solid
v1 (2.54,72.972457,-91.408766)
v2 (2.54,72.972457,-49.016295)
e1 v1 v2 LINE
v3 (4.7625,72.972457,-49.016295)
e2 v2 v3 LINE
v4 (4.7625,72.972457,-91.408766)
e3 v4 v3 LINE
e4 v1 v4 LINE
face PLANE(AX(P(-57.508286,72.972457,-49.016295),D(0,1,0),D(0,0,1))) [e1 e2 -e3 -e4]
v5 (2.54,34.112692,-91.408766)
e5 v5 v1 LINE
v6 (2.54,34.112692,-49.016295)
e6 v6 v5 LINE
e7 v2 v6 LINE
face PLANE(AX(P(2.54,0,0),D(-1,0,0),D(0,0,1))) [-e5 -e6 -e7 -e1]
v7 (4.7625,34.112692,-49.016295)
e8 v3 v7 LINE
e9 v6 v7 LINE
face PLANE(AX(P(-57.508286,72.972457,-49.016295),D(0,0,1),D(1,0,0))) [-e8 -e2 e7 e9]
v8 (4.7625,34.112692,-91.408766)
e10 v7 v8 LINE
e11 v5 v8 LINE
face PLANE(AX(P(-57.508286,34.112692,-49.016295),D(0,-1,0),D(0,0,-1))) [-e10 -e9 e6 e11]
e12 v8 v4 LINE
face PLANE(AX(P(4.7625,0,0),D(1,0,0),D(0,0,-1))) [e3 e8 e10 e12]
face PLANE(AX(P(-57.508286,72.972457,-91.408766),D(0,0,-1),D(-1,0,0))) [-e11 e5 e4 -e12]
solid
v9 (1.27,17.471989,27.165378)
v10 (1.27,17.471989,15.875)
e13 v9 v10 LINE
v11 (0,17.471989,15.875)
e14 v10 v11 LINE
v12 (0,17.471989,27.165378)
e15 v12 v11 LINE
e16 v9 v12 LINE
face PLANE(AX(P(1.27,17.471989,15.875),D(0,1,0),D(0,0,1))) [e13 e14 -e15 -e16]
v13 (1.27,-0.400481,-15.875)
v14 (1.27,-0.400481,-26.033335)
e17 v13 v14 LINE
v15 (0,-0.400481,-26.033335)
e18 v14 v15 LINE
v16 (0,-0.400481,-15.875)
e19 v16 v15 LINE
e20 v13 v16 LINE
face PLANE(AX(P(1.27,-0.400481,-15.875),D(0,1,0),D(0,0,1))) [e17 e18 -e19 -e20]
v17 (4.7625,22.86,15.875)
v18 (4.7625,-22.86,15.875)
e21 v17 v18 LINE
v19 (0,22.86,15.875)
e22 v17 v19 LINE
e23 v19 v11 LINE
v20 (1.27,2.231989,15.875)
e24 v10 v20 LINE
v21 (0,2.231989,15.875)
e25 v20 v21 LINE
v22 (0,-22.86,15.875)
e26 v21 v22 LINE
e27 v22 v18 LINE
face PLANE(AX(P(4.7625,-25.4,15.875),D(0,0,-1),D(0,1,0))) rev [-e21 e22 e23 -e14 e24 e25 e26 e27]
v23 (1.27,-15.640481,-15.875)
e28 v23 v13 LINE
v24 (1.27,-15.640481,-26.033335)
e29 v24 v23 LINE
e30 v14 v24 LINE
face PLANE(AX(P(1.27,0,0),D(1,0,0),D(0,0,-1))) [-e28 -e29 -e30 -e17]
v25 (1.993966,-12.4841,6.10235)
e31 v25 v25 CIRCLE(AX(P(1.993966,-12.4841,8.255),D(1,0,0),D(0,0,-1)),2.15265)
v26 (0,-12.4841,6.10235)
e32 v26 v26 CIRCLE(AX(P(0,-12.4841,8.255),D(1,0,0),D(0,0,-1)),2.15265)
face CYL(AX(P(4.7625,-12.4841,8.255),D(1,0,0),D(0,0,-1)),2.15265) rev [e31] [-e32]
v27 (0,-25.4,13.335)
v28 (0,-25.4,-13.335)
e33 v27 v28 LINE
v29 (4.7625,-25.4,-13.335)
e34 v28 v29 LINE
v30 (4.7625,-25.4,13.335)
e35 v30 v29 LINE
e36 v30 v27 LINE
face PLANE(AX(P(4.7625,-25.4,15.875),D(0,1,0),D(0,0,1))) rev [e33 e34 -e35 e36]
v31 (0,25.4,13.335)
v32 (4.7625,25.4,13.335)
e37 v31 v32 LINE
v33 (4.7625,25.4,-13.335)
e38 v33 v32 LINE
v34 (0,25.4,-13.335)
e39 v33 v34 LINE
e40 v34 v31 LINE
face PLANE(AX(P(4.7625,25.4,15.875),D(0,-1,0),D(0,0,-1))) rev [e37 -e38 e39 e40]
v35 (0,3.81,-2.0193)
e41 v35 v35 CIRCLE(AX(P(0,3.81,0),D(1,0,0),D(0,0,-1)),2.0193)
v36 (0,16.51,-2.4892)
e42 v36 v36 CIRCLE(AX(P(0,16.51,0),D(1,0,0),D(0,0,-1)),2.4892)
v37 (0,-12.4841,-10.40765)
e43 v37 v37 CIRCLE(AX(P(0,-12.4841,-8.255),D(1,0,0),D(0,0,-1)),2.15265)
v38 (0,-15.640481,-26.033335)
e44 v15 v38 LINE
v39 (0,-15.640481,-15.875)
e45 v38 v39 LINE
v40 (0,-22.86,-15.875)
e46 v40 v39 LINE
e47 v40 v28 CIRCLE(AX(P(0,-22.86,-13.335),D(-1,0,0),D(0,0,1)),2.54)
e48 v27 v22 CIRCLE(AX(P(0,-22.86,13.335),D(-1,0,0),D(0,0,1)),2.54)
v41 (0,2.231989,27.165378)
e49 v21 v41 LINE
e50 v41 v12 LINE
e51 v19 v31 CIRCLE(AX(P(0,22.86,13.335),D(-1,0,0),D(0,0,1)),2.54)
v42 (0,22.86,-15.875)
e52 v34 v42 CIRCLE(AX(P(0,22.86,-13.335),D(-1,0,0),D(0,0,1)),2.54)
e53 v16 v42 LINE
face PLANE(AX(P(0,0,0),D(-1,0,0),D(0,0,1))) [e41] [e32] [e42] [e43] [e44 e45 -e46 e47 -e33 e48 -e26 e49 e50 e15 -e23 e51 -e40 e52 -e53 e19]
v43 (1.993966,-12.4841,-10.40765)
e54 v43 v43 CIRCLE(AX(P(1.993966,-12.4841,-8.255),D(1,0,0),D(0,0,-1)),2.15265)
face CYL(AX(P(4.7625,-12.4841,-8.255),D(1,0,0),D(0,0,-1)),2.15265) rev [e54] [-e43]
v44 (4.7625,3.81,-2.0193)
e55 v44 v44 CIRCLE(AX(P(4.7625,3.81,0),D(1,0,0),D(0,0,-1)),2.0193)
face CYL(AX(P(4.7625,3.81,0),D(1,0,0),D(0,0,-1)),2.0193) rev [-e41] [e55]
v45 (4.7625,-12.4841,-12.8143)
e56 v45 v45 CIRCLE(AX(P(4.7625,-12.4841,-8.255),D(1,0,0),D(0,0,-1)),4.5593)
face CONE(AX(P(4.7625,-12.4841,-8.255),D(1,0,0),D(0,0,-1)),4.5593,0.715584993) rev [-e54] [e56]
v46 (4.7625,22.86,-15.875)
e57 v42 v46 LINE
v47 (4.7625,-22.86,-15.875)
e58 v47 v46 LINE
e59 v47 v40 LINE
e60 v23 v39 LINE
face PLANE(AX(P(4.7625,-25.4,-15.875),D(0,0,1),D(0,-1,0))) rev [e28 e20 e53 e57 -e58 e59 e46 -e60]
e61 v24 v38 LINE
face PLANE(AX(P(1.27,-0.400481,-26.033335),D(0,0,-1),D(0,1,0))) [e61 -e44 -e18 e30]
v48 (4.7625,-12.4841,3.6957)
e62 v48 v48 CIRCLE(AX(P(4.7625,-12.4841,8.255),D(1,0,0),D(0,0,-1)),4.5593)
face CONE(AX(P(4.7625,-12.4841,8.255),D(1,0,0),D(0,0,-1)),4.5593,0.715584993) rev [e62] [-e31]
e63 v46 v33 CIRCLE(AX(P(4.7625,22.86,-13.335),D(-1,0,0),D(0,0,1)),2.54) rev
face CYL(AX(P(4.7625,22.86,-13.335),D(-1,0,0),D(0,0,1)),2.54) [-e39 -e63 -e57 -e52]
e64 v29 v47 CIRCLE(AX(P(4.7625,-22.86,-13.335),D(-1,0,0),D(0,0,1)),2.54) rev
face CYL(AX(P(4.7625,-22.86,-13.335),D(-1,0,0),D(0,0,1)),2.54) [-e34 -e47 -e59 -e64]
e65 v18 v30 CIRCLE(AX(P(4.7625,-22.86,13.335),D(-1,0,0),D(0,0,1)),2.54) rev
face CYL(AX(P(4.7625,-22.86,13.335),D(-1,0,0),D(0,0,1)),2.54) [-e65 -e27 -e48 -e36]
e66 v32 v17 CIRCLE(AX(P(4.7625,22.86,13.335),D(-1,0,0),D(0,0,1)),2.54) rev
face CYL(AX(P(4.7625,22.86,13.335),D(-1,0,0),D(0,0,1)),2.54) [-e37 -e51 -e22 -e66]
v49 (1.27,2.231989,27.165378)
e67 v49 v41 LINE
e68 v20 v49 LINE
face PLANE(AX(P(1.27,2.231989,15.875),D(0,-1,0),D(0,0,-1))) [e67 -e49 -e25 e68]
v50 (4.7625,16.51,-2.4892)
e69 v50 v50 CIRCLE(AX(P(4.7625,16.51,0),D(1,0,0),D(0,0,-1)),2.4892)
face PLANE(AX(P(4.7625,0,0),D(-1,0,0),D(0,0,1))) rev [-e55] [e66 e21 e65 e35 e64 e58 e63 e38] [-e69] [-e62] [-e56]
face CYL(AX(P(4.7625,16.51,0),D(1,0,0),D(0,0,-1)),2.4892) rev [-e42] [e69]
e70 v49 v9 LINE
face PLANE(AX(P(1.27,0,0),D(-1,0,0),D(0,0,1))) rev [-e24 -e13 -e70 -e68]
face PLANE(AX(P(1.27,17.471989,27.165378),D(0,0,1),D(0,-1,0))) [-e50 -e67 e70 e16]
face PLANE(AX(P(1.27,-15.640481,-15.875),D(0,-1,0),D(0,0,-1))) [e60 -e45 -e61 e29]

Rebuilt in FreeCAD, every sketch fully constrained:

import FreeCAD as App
import Part
import Sketcher
from FreeCAD import Vector
Q = App.Units.Quantity


def edges_at(feature, points):
    """Names of the edges that pass closest to the given points."""
    edges = feature.Shape.Edges
    near = lambda p: min(range(len(edges)), key=lambda i: edges[i].distToShape(Part.Vertex(*p))[0])
    return sorted({f"Edge{near(p) + 1}" for p in points})

doc = App.newDocument("Part")
body = doc.addObject("PartDesign::Body", "Body")

# Sketch on YZ plane
sketch1 = body.newObject("Sketcher::SketchObject", "Sketch")
sketch1.AttachmentSupport = (doc.getObject("YZ_Plane"), [""])
sketch1.MapMode = "FlatFace"
sketch1.addGeometry(Part.LineSegment(Vector(25, 16, 0), Vector(-25, 16, 0)), False)
sketch1.addGeometry(Part.LineSegment(Vector(-25, 16, 0), Vector(-25, -16, 0)), False)
sketch1.addGeometry(Part.LineSegment(Vector(-25, -16, 0), Vector(25, -16, 0)), False)
sketch1.addGeometry(Part.LineSegment(Vector(25, -16, 0), Vector(25, 16, 0)), False)
sketch1.addConstraint(Sketcher.Constraint("Coincident", 0, 2, 1, 1))
sketch1.addConstraint(Sketcher.Constraint("Coincident", 1, 2, 2, 1))
sketch1.addConstraint(Sketcher.Constraint("Coincident", 2, 2, 3, 1))
sketch1.addConstraint(Sketcher.Constraint("Coincident", 3, 2, 0, 1))
sketch1.addConstraint(Sketcher.Constraint("Horizontal", 0))
sketch1.addConstraint(Sketcher.Constraint("Vertical", 1))
sketch1.addConstraint(Sketcher.Constraint("Horizontal", 2))
sketch1.addConstraint(Sketcher.Constraint("Vertical", 3))
sketch1.addConstraint(Sketcher.Constraint("Symmetric", 0, 2, 2, 2, -1, 1))
sketch1.addConstraint(Sketcher.Constraint("DistanceX", 0, 2, 0, 1, Q("2 in")))
sketch1.addConstraint(Sketcher.Constraint("DistanceY", 1, 2, 1, 1, Q("1.25 in")))
pad1 = body.newObject("PartDesign::Pad", "Pad")
pad1.Profile = sketch1
pad1.Length = Q("0.1875 in")

# Sketch on XZ plane
sketch2 = body.newObject("Sketcher::SketchObject", "Sketch001")
sketch2.AttachmentSupport = (doc.getObject("XZ_Plane"), [""])
sketch2.MapMode = "FlatFace"
sketch2.AttachmentOffset = App.Placement(Vector(0, 0, 0.4915 * 25.4), App.Rotation())
sketch2.addGeometry(Part.LineSegment(Vector(0, 8.3, 0), Vector(4.8, 8.3, 0)), False)
sketch2.addGeometry(Part.LineSegment(Vector(4.8, 8.3, 0), Vector(4.8, 3.7, 0)), False)
sketch2.addGeometry(Part.LineSegment(Vector(4.8, 3.7, 0), Vector(2, 6.1, 0)), False)
sketch2.addGeometry(Part.LineSegment(Vector(2, 6.1, 0), Vector(0, 6.1, 0)), False)
sketch2.addGeometry(Part.LineSegment(Vector(0, 6.1, 0), Vector(0, 8.3, 0)), False)
sketch2.addGeometry(Part.LineSegment(Vector(4.8, 8.3, 0), Vector(0, 8.3, 0)), True)  # axis
sketch2.addConstraint(Sketcher.Constraint("Coincident", 0, 2, 1, 1))
sketch2.addConstraint(Sketcher.Constraint("Coincident", 1, 2, 2, 1))
sketch2.addConstraint(Sketcher.Constraint("Coincident", 2, 2, 3, 1))
sketch2.addConstraint(Sketcher.Constraint("Coincident", 3, 2, 4, 1))
sketch2.addConstraint(Sketcher.Constraint("Coincident", 4, 2, 0, 1))
sketch2.addConstraint(Sketcher.Constraint("Horizontal", 0))
sketch2.addConstraint(Sketcher.Constraint("Vertical", 1))
sketch2.addConstraint(Sketcher.Constraint("Horizontal", 3))
sketch2.addConstraint(Sketcher.Constraint("Vertical", 4))
sketch2.addConstraint(Sketcher.Constraint("Horizontal", 5))
sketch2.addConstraint(Sketcher.Constraint("Coincident", 5, 1, 0, 2))
sketch2.addConstraint(Sketcher.Constraint("PointOnObject", 3, 2, -2))
sketch2.addConstraint(Sketcher.Constraint("PointOnObject", 5, 2, -2))
sketch2.addConstraint(Sketcher.Constraint("Angle", 2, Q("139 deg")))
sketch2.addConstraint(Sketcher.Constraint("DistanceX", 0, 1, 0, 2, Q("0.1875 in")))
sketch2.addConstraint(Sketcher.Constraint("DistanceY", 1, 2, 1, 1, Q("0.1795 in")))
sketch2.addConstraint(Sketcher.Constraint("DistanceY", -1, 1, 0, 2, Q("0.325 in")))
sketch2.addConstraint(Sketcher.Constraint("DistanceY", 4, 1, 4, 2, Q("2.15265 mm")))
groove = body.newObject("PartDesign::Groove", "Groove")
groove.Profile = sketch2
groove.ReferenceAxis = (sketch2, ["Axis0"])
groove.Angle = 360
doc.recompute()

linearpattern = body.newObject("PartDesign::LinearPattern", "LinearPattern")
linearpattern.Originals = [groove]
linearpattern.Direction = (doc.getObject("Z_Axis"), [""])
linearpattern.Mode = "offset"
linearpattern.Offset = Q("0.65 in")
linearpattern.Occurrences = 2
linearpattern.Reversed = True
body.Tip = linearpattern

# Sketch on YZ plane
sketch3 = body.newObject("Sketcher::SketchObject", "Sketch002")
sketch3.AttachmentSupport = (doc.getObject("YZ_Plane"), [""])
sketch3.MapMode = "FlatFace"
sketch3.AttachmentOffset = App.Placement(Vector(0, 0, 0.1875 * 25.4), App.Rotation())
sketch3.addGeometry(Part.Circle(Vector(16.5, 0, 0), Vector(0, 0, 1), 2.5), False)
sketch3.addConstraint(Sketcher.Constraint("PointOnObject", 0, 3, -1))
sketch3.addConstraint(Sketcher.Constraint("Diameter", 0, Q("0.196 in")))
sketch3.addConstraint(Sketcher.Constraint("DistanceX", -1, 1, 0, 3, Q("0.65 in")))
doc.recompute()
hole = body.newObject("PartDesign::Hole", "Hole")
hole.Profile = sketch3
hole.ThreadType = "None"
hole.Diameter = Q("0.196 in")
hole.DepthType = "ThroughAll"
doc.recompute()

fillet = body.newObject("PartDesign::Fillet", "Fillet")
fillet.Base = (hole, edges_at(hole, [
    (2.381, -25.4, -15.875),
    (2.381, -25.4, 15.875),
    (2.381, 25.4, 15.875),
    (2.381, 25.4, -15.875),
]))
fillet.Radius = Q("0.1 in")

# Sketch on YZ plane
sketch4 = body.newObject("Sketcher::SketchObject", "Sketch003")
sketch4.AttachmentSupport = (doc.getObject("YZ_Plane"), [""])
sketch4.MapMode = "FlatFace"
sketch4.AttachmentOffset = App.Placement(Vector(0, 0, 0.1875 * 25.4), App.Rotation())
sketch4.addGeometry(Part.Circle(Vector(3.8, 0, 0), Vector(0, 0, 1), 2), False)
sketch4.addConstraint(Sketcher.Constraint("PointOnObject", 0, 3, -1))
sketch4.addConstraint(Sketcher.Constraint("Diameter", 0, Q("0.159 in")))
sketch4.addConstraint(Sketcher.Constraint("DistanceX", -1, 1, 0, 3, Q("0.15 in")))
doc.recompute()
hole2 = body.newObject("PartDesign::Hole", "Hole001")
hole2.Profile = sketch4
hole2.ThreadType = "None"
hole2.Diameter = Q("0.159 in")
hole2.DepthType = "ThroughAll"

# Sketch on YZ plane
sketch5 = body.newObject("Sketcher::SketchObject", "Sketch004")
sketch5.AttachmentSupport = (doc.getObject("YZ_Plane"), [""])
sketch5.MapMode = "FlatFace"
sketch5.addGeometry(Part.LineSegment(Vector(17, 16, 0), Vector(2, 16, 0)), False)
sketch5.addGeometry(Part.LineSegment(Vector(2, 16, 0), Vector(2, 27, 0)), False)
sketch5.addGeometry(Part.LineSegment(Vector(2, 27, 0), Vector(17, 27, 0)), False)
sketch5.addGeometry(Part.LineSegment(Vector(17, 27, 0), Vector(17, 16, 0)), False)
sketch5.addGeometry(Part.LineSegment(Vector(0, -26, 0), Vector(-16, -26, 0)), False)
sketch5.addGeometry(Part.LineSegment(Vector(-16, -26, 0), Vector(-16, -16, 0)), False)
sketch5.addGeometry(Part.LineSegment(Vector(-16, -16, 0), Vector(0, -16, 0)), False)
sketch5.addGeometry(Part.LineSegment(Vector(0, -16, 0), Vector(0, -26, 0)), False)
sketch5.addConstraint(Sketcher.Constraint("Coincident", 0, 2, 1, 1))
sketch5.addConstraint(Sketcher.Constraint("Coincident", 1, 2, 2, 1))
sketch5.addConstraint(Sketcher.Constraint("Coincident", 2, 2, 3, 1))
sketch5.addConstraint(Sketcher.Constraint("Coincident", 3, 2, 0, 1))
sketch5.addConstraint(Sketcher.Constraint("Coincident", 4, 2, 5, 1))
sketch5.addConstraint(Sketcher.Constraint("Coincident", 5, 2, 6, 1))
sketch5.addConstraint(Sketcher.Constraint("Coincident", 6, 2, 7, 1))
sketch5.addConstraint(Sketcher.Constraint("Coincident", 7, 2, 4, 1))
sketch5.addConstraint(Sketcher.Constraint("Horizontal", 0))
sketch5.addConstraint(Sketcher.Constraint("Vertical", 1))
sketch5.addConstraint(Sketcher.Constraint("Horizontal", 2))
sketch5.addConstraint(Sketcher.Constraint("Vertical", 3))
sketch5.addConstraint(Sketcher.Constraint("Horizontal", 4))
sketch5.addConstraint(Sketcher.Constraint("Vertical", 5))
sketch5.addConstraint(Sketcher.Constraint("Horizontal", 6))
sketch5.addConstraint(Sketcher.Constraint("Vertical", 7))
sketch5.addConstraint(Sketcher.Constraint("Equal", 2, 4))
sketch5.addConstraint(Sketcher.Constraint("DistanceX", 0, 2, 0, 1, Q("0.6 in")))
sketch5.addConstraint(Sketcher.Constraint("DistanceY", 5, 2, 0, 2, Q("1.25 in")))
sketch5.addConstraint(Sketcher.Constraint("DistanceY", -1, 1, 0, 2, Q("0.625 in")))
sketch5.addConstraint(Sketcher.Constraint("DistanceY", 1, 1, 1, 2, Q("11.290378 mm")))
sketch5.addConstraint(Sketcher.Constraint("DistanceY", 5, 1, 5, 2, Q("10.158335 mm")))
sketch5.addConstraint(Sketcher.Constraint("DistanceX", -1, 1, 0, 2, Q("2.231989 mm")))
sketch5.addConstraint(Sketcher.Constraint("DistanceX", 4, 2, -1, 1, Q("15.640481 mm")))
pad2 = body.newObject("PartDesign::Pad", "Pad001")
pad2.Profile = sketch5
pad2.Length = Q("0.05 in")
body2 = doc.addObject("PartDesign::Body", "Body001")

# Sketch on YZ plane
sketch6 = body2.newObject("Sketcher::SketchObject", "Sketch005")
sketch6.AttachmentSupport = (doc.getObject("YZ_Plane001"), [""])
sketch6.MapMode = "FlatFace"
sketch6.AttachmentOffset = App.Placement(Vector(0, 0, 0.1875 * 25.4), App.Rotation())
sketch6.addGeometry(Part.LineSegment(Vector(73, -49, 0), Vector(34, -49, 0)), False)
sketch6.addGeometry(Part.LineSegment(Vector(34, -49, 0), Vector(34, -91, 0)), False)
sketch6.addGeometry(Part.LineSegment(Vector(34, -91, 0), Vector(73, -91, 0)), False)
sketch6.addGeometry(Part.LineSegment(Vector(73, -91, 0), Vector(73, -49, 0)), False)
sketch6.addConstraint(Sketcher.Constraint("Coincident", 0, 2, 1, 1))
sketch6.addConstraint(Sketcher.Constraint("Coincident", 1, 2, 2, 1))
sketch6.addConstraint(Sketcher.Constraint("Coincident", 2, 2, 3, 1))
sketch6.addConstraint(Sketcher.Constraint("Coincident", 3, 2, 0, 1))
sketch6.addConstraint(Sketcher.Constraint("Horizontal", 0))
sketch6.addConstraint(Sketcher.Constraint("Vertical", 1))
sketch6.addConstraint(Sketcher.Constraint("Horizontal", 2))
sketch6.addConstraint(Sketcher.Constraint("Vertical", 3))
sketch6.addConstraint(Sketcher.Constraint("DistanceY", 1, 2, 1, 1, Q("42.392471 mm")))
sketch6.addConstraint(Sketcher.Constraint("DistanceX", 0, 2, 0, 1, Q("38.859765 mm")))
sketch6.addConstraint(Sketcher.Constraint("DistanceX", -1, 1, 0, 2, Q("34.112692 mm")))
sketch6.addConstraint(Sketcher.Constraint("DistanceY", 0, 2, -1, 1, Q("49.016295 mm")))
pad3 = body2.newObject("PartDesign::Pad", "Pad002")
pad3.Profile = sketch6
pad3.Length = Q("0.0875 in")
pad3.Reversed = True

doc.recompute()
